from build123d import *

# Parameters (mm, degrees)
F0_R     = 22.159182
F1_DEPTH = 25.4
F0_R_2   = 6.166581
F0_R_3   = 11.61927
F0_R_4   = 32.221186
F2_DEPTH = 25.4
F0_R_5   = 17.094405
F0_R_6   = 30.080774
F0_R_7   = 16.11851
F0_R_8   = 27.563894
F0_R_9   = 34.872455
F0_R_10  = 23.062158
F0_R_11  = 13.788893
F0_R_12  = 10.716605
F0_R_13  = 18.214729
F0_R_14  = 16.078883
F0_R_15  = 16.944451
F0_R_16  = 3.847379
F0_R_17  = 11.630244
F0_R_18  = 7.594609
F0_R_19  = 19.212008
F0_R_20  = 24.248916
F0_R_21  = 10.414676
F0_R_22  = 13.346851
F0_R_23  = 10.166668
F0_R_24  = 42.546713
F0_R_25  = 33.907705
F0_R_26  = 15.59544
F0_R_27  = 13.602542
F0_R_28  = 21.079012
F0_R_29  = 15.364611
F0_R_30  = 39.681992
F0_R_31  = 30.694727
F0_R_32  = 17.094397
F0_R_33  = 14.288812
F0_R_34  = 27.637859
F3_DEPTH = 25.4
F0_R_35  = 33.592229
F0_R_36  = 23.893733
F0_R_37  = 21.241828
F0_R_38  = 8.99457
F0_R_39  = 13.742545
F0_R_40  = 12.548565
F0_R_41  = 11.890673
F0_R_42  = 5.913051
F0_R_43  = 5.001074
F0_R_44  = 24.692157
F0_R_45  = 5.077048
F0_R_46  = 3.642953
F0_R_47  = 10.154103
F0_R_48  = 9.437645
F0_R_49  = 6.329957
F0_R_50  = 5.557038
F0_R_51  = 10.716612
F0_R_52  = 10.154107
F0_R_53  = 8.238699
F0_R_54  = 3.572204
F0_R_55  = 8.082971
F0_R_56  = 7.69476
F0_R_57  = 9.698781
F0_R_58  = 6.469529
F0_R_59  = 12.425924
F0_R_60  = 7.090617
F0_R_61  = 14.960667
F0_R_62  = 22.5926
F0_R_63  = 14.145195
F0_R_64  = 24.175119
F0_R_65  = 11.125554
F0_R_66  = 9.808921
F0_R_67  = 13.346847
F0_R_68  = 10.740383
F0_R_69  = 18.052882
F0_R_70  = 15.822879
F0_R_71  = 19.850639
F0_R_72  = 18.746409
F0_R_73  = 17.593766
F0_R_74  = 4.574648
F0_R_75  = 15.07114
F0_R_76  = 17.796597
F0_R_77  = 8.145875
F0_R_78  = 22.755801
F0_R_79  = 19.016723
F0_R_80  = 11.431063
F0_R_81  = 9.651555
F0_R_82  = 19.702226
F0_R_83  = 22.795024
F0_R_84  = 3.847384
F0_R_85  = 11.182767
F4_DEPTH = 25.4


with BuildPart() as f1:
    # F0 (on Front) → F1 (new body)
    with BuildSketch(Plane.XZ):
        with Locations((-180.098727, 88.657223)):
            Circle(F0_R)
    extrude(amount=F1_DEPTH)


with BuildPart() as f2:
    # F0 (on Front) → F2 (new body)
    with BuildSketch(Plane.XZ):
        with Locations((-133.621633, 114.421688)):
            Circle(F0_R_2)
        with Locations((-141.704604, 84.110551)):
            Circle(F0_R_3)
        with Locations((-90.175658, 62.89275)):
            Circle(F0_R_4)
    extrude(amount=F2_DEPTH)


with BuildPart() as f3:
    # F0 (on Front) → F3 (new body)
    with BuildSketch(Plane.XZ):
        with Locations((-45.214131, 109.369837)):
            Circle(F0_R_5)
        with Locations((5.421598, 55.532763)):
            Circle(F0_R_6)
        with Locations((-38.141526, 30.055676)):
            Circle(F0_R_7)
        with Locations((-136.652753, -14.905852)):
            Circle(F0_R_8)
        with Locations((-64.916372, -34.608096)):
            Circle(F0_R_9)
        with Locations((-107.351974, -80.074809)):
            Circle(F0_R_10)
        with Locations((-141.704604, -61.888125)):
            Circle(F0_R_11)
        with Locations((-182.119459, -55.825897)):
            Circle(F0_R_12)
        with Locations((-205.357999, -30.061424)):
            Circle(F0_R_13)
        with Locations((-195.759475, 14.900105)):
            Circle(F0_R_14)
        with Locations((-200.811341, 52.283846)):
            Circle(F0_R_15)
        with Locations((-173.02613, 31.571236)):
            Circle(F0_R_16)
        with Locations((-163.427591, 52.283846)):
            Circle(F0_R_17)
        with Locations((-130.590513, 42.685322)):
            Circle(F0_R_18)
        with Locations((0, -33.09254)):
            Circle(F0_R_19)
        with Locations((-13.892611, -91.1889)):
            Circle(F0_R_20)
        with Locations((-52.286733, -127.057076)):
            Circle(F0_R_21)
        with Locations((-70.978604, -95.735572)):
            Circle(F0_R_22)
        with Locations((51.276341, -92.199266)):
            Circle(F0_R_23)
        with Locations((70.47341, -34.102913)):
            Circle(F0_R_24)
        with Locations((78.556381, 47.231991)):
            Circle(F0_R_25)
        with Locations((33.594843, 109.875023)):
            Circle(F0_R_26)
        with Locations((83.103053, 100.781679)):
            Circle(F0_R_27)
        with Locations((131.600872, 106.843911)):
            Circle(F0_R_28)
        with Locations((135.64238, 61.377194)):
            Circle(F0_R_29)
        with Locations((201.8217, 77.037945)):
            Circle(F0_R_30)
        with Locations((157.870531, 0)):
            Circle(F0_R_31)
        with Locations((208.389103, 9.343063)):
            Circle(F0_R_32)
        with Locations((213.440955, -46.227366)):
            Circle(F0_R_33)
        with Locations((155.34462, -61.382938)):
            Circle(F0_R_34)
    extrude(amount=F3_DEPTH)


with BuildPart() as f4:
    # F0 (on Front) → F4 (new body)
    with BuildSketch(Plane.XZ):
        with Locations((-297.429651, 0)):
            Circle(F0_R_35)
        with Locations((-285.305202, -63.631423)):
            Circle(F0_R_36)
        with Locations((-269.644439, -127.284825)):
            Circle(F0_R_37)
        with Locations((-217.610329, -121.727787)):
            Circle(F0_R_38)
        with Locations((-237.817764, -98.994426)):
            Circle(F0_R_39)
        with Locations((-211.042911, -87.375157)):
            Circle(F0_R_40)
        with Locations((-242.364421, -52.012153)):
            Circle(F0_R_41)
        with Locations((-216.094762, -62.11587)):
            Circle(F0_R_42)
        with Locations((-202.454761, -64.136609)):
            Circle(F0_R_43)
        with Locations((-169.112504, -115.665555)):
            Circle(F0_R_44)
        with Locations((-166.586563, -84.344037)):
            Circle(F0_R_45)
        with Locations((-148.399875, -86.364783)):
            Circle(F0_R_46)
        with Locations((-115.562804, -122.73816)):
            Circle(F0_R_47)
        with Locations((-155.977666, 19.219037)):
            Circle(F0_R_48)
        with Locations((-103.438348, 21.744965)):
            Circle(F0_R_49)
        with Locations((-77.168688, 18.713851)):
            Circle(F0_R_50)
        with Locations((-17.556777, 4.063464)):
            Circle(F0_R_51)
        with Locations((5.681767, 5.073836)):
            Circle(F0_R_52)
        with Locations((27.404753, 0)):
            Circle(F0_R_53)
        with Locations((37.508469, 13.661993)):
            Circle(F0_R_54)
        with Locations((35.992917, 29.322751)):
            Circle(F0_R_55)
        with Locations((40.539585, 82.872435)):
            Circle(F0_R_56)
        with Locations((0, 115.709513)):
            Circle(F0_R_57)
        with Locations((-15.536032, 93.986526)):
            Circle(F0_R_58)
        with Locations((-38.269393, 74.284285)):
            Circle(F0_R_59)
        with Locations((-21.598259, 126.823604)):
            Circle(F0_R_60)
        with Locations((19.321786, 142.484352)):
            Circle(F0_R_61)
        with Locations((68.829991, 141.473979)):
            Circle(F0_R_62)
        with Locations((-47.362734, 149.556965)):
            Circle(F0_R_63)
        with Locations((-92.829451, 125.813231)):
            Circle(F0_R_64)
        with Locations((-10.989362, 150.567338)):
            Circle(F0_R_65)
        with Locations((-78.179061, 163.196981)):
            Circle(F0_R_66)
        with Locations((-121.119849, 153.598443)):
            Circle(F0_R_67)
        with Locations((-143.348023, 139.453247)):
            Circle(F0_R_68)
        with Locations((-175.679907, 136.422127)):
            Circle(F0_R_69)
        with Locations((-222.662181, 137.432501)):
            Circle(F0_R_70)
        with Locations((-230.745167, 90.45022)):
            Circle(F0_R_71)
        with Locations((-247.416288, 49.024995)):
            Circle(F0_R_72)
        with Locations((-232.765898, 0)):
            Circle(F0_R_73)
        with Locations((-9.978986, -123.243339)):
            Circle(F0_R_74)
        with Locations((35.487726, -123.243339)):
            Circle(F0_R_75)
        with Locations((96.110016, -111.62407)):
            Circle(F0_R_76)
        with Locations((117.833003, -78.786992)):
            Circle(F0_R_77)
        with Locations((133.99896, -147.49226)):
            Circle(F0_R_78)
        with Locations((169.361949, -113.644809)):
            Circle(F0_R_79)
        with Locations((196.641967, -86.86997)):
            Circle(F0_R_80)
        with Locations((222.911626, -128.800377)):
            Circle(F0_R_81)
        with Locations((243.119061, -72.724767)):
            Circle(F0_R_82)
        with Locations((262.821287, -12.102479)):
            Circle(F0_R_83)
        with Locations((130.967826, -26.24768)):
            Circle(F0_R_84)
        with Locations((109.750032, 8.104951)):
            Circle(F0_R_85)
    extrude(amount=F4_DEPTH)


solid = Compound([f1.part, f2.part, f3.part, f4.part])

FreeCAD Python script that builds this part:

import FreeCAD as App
import Part
import Sketcher

V = App.Vector
Q = App.Units.Quantity

doc = App.newDocument("Part")
body = doc.addObject("PartDesign::Body", "Body")

sketch1 = doc.addObject("Sketcher::SketchObject", "Sketch")
body.addObject(sketch1)
sketch1.AttachmentSupport = (doc.XZ_Plane, [""])
sketch1.MapMode = "FlatFace"
sketch1.addGeometry(Part.Circle(V(-180, 89, 0), V(0, 0, 1), 22), False)
sketch1.addConstraint([
    Sketcher.Constraint("Diameter", 0, 44.318364),
    Sketcher.Constraint("DistanceX", 0, 3, -1, 1, 180.098727),
    Sketcher.Constraint("DistanceY", -1, 1, 0, 3, 88.657223),
])
pad1 = doc.addObject("PartDesign::Pad", "Pad")
body.addObject(pad1)
pad1.Profile = sketch1
pad1.Length = Q("1 in")
body2 = doc.addObject("PartDesign::Body", "Body001")
body2.AllowCompound = True

sketch2 = doc.addObject("Sketcher::SketchObject", "Sketch001")
body2.addObject(sketch2)
sketch2.AttachmentSupport = (doc.getObject("XZ_Plane001"), [""])
sketch2.MapMode = "FlatFace"
sketch2.addGeometry([
    Part.Circle(V(-134, 114, 0), V(0, 0, 1), 6),
    Part.Circle(V(-142, 84, 0), V(0, 0, 1), 12),
    Part.Circle(V(-90, 63, 0), V(0, 0, 1), 32),
], False)
sketch2.addConstraint([
    Sketcher.Constraint("Diameter", 1, 23.23854),
    Sketcher.Constraint("Diameter", 0, 12.333162),
    Sketcher.Constraint("Diameter", 2, 64.442372),
    Sketcher.Constraint("DistanceY", 2, 3, 1, 3, 21.217801),
    Sketcher.Constraint("DistanceY", -1, 1, 0, 3, 114.421688),
    Sketcher.Constraint("DistanceY", -1, 1, 1, 3, 84.110551),
    Sketcher.Constraint("DistanceX", 2, 3, -1, 1, 90.175658),
    Sketcher.Constraint("DistanceX", 1, 3, 0, 3, 8.082971),
    Sketcher.Constraint("DistanceX", 0, 3, -1, 1, 133.621633),
])
pad2 = doc.addObject("PartDesign::Pad", "Pad001")
body2.addObject(pad2)
pad2.Profile = sketch2
pad2.Length = Q("1 in")
body3 = doc.addObject("PartDesign::Body", "Body002")
body3.AllowCompound = True

sketch3 = doc.addObject("Sketcher::SketchObject", "Sketch002")
body3.addObject(sketch3)
sketch3.AttachmentSupport = (doc.getObject("XZ_Plane002"), [""])
sketch3.MapMode = "FlatFace"
sketch3.addGeometry([
    Part.Circle(V(-45.2, 109.4, 0), V(0, 0, 1), 17.1),
    Part.Circle(V(5.4, 55.5, 0), V(0, 0, 1), 30.1),
    Part.Circle(V(-38.1, 30.1, 0), V(0, 0, 1), 16.1),
    Part.Circle(V(-136.7, -14.9, 0), V(0, 0, 1), 27.6),
    Part.Circle(V(-64.9, -34.6, 0), V(0, 0, 1), 34.9),
    Part.Circle(V(-107.4, -80.1, 0), V(0, 0, 1), 23.1),
    Part.Circle(V(-141.7, -61.9, 0), V(0, 0, 1), 13.8),
    Part.Circle(V(-182.1, -55.8, 0), V(0, 0, 1), 10.7),
    Part.Circle(V(-205.4, -30.1, 0), V(0, 0, 1), 18.2),
    Part.Circle(V(-195.8, 14.9, 0), V(0, 0, 1), 16.1),
    Part.Circle(V(-200.8, 52.3, 0), V(0, 0, 1), 16.9),
    Part.Circle(V(-173, 31.6, 0), V(0, 0, 1), 3.8),
    Part.Circle(V(-163.4, 52.3, 0), V(0, 0, 1), 11.6),
    Part.Circle(V(-130.6, 42.7, 0), V(0, 0, 1), 7.6),
    Part.Circle(V(0, -33.1, 0), V(0, 0, 1), 19.2),
    Part.Circle(V(-13.9, -91.2, 0), V(0, 0, 1), 24.2),
    Part.Circle(V(-52.3, -127.1, 0), V(0, 0, 1), 10.4),
    Part.Circle(V(-71, -95.7, 0), V(0, 0, 1), 13.3),
    Part.Circle(V(51.3, -92.2, 0), V(0, 0, 1), 10.2),
    Part.Circle(V(70.5, -34.1, 0), V(0, 0, 1), 42.5),
    Part.Circle(V(78.6, 47.2, 0), V(0, 0, 1), 33.9),
    Part.Circle(V(33.6, 109.9, 0), V(0, 0, 1), 15.6),
    Part.Circle(V(83.1, 100.8, 0), V(0, 0, 1), 13.6),
    Part.Circle(V(131.6, 106.8, 0), V(0, 0, 1), 21.1),
    Part.Circle(V(135.6, 61.4, 0), V(0, 0, 1), 15.4),
    Part.Circle(V(201.8, 77, 0), V(0, 0, 1), 39.7),
    Part.Circle(V(157.9, 0, 0), V(0, 0, 1), 30.7),
    Part.Circle(V(208.4, 9.3, 0), V(0, 0, 1), 17.1),
    Part.Circle(V(213.4, -46.2, 0), V(0, 0, 1), 14.3),
    Part.Circle(V(155.3, -61.4, 0), V(0, 0, 1), 27.6),
], False)
sketch3.addConstraint([
    Sketcher.Constraint("PointOnObject", 14, 3, -2),
    Sketcher.Constraint("PointOnObject", 26, 3, -1),
    Sketcher.Constraint("Horizontal", 10, 3, 12, 3),
    Sketcher.Constraint("Diameter", 17, 26.693702),
    Sketcher.Constraint("Diameter", 0, 34.18881),
    Sketcher.Constraint("Diameter", 1, 60.161548),
    Sketcher.Constraint("Diameter", 2, 32.23702),
    Sketcher.Constraint("Diameter", 3, 55.127788),
    Sketcher.Constraint("Diameter", 4, 69.74491),
    Sketcher.Constraint("Diameter", 7, 21.43321),
    Sketcher.Constraint("Diameter", 11, 7.694758),
    Sketcher.Constraint("Diameter", 16, 20.829352),
    Sketcher.Constraint("Diameter", 20, 67.81541),
    Sketcher.Constraint("Diameter", 21, 31.19088),
    Sketcher.Constraint("Diameter", 24, 30.729222),
    Sketcher.Constraint("Diameter", 5, 46.124316),
    Sketcher.Constraint("Diameter", 6, 27.577786),
    Sketcher.Constraint("Diameter", 8, 36.429458),
    Sketcher.Constraint("Diameter", 9, 32.157766),
    Sketcher.Constraint("Diameter", 10, 33.888902),
    Sketcher.Constraint("Diameter", 12, 23.260488),
    Sketcher.Constraint("Diameter", 13, 15.189218),
    Sketcher.Constraint("Diameter", 14, 38.424016),
    Sketcher.Constraint("Diameter", 15, 48.497832),
    Sketcher.Constraint("Diameter", 18, 20.333336),
    Sketcher.Constraint("Diameter", 19, 85.093426),
    Sketcher.Constraint("Diameter", 22, 27.205084),
    Sketcher.Constraint("Diameter", 23, 42.158024),
    Sketcher.Constraint("Diameter", 25, 79.363984),
    Sketcher.Constraint("Diameter", 26, 61.389454),
    Sketcher.Constraint("Diameter", 27, 34.188794),
    Sketcher.Constraint("Diameter", 28, 28.577624),
    Sketcher.Constraint("Diameter", 29, 55.275718),
    Sketcher.Constraint("DistanceY", 28, 3, 24, 3, Q("4.2364 in")),
    Sketcher.Constraint("DistanceX", -1, 1, 1, 3, 5.421598),
    Sketcher.Constraint("DistanceX", 8, 3, -1, 1, 205.357999),
    Sketcher.Constraint("DistanceY", 15, 3, -1, 1, 91.1889),
    Sketcher.Constraint("DistanceX", -1, 1, 25, 3, 201.8217),
    Sketcher.Constraint("DistanceY", 6, 3, 2, 3, 91.943801),
    Sketcher.Constraint("DistanceX", 6, 3, 1, 3, 147.126202),
    Sketcher.Constraint("DistanceY", 7, 3, 4, 3, 21.217801),
    Sketcher.Constraint("DistanceY", 6, 3, 8, 3, 31.826701),
    Sketcher.Constraint("DistanceY", 7, 3, 9, 3, 70.726002),
    Sketcher.Constraint("DistanceX", 9, 3, 5, 3, 88.407501),
    Sketcher.Constraint("DistanceX", 6, 3, 17, 3, 70.726),
    Sketcher.Constraint("DistanceX", 20, 3, 24, 3, 57.085999),
    Sketcher.Constraint("DistanceY", 29, 3, 27, 3, 70.726001),
    Sketcher.Constraint("DistanceX", 0, 3, -1, 1, 45.214131),
    Sketcher.Constraint("DistanceX", 4, 3, -1, 1, 64.916372),
    Sketcher.Constraint("DistanceY", 5, 3, -1, 1, 80.074809),
    Sketcher.Constraint("DistanceX", 7, 3, -1, 1, 182.119459),
    Sketcher.Constraint("DistanceX", 10, 3, -1, 1, 200.811341),
    Sketcher.Constraint("DistanceX", 11, 3, -1, 1, 173.02613),
    Sketcher.Constraint("DistanceX", 12, 3, -1, 1, 163.427591),
    Sketcher.Constraint("DistanceY", 14, 3, -1, 1, 33.09254),
    Sketcher.Constraint("DistanceX", 15, 3, -1, 1, 13.892611),
    Sketcher.Constraint("DistanceX", -1, 1, 18, 3, 51.276341),
    Sketcher.Constraint("DistanceX", -1, 1, 19, 3, 70.47341),
    Sketcher.Constraint("DistanceX", -1, 1, 20, 3, 78.556381),
    Sketcher.Constraint("DistanceY", -1, 1, 20, 3, 47.231991),
    Sketcher.Constraint("DistanceY", -1, 1, 22, 3, 100.781679),
    Sketcher.Constraint("DistanceY", -1, 1, 23, 3, 106.843911),
    Sketcher.Constraint("DistanceX", -1, 1, 26, 3, 157.870531),
    Sketcher.Constraint("DistanceX", -1, 1, 29, 3, 155.34462),
    Sketcher.Constraint("DistanceY", 29, 3, -1, 1, 61.382938),
    Sketcher.Constraint("DistanceY", 2, 3, 0, 3, 79.314161),
    Sketcher.Constraint("DistanceX", 3, 3, 0, 3, 91.438622),
    Sketcher.Constraint("DistanceY", 3, 3, 0, 3, 124.275689),
    Sketcher.Constraint("DistanceY", 4, 3, 2, 3, 64.663772),
    Sketcher.Constraint("DistanceY", 4, 3, 1, 3, 90.140859),
    Sketcher.Constraint("DistanceX", 3, 3, 5, 3, 29.300779),
    Sketcher.Constraint("DistanceX", 5, 3, 2, 3, 69.210448),
    Sketcher.Constraint("DistanceY", 5, 3, 1, 3, 135.607572),
    Sketcher.Constraint("DistanceY", 9, 3, 10, 3, 37.383741),
    Sketcher.Constraint("DistanceY", 9, 3, 11, 3, 16.671131),
    Sketcher.Constraint("DistanceX", 12, 3, 13, 3, 32.837078),
    Sketcher.Constraint("DistanceX", 16, 3, 15, 3, 38.394122),
    Sketcher.Constraint("DistanceY", 16, 3, 4, 3, 92.44898),
    Sketcher.Constraint("DistanceY", 16, 3, 18, 3, 34.85781),
    Sketcher.Constraint("DistanceY", 19, 3, 2, 3, 64.158589),
    Sketcher.Constraint("DistanceY", 1, 3, 21, 3, 54.34226),
    Sketcher.Constraint("DistanceX", 21, 3, 20, 3, 44.961538),
    Sketcher.Constraint("DistanceX", 21, 3, 22, 3, 49.50821),
    Sketcher.Constraint("DistanceX", 22, 3, 23, 3, 48.497819),
    Sketcher.Constraint("DistanceY", 24, 3, 21, 3, 48.497829),
    Sketcher.Constraint("DistanceY", 24, 3, 25, 3, 15.660751),
    Sketcher.Constraint("DistanceX", 23, 3, 27, 3, 76.788231),
    Sketcher.Constraint("DistanceX", 27, 3, 28, 3, 5.051852),
    Sketcher.Constraint("DistanceY", -1, 1, 13, 3, 42.685322),
    Sketcher.Constraint("DistanceY", 17, 3, -1, 1, 95.735572),
])
pad3 = doc.addObject("PartDesign::Pad", "Pad002")
body3.addObject(pad3)
pad3.Profile = sketch3
pad3.Length = Q("1 in")
body4 = doc.addObject("PartDesign::Body", "Body003")
body4.AllowCompound = True

sketch4 = doc.addObject("Sketcher::SketchObject", "Sketch003")
body4.addObject(sketch4)
sketch4.AttachmentSupport = (doc.getObject("XZ_Plane003"), [""])
sketch4.MapMode = "FlatFace"
sketch4.addGeometry([
    Part.Circle(V(-297.4, 0, 0), V(0, 0, 1), 33.6),
    Part.Circle(V(-285.3, -63.6, 0), V(0, 0, 1), 23.9),
    Part.Circle(V(-269.6, -127.3, 0), V(0, 0, 1), 21.2),
    Part.Circle(V(-217.6, -121.7, 0), V(0, 0, 1), 9),
    Part.Circle(V(-237.8, -99, 0), V(0, 0, 1), 13.7),
    Part.Circle(V(-211, -87.4, 0), V(0, 0, 1), 12.5),
    Part.Circle(V(-242.4, -52, 0), V(0, 0, 1), 11.9),
    Part.Circle(V(-216.1, -62.1, 0), V(0, 0, 1), 5.9),
    Part.Circle(V(-202.5, -64.1, 0), V(0, 0, 1), 5),
    Part.Circle(V(-169.1, -115.7, 0), V(0, 0, 1), 24.7),
    Part.Circle(V(-166.6, -84.3, 0), V(0, 0, 1), 5.1),
    Part.Circle(V(-148.4, -86.4, 0), V(0, 0, 1), 3.6),
    Part.Circle(V(-115.6, -122.7, 0), V(0, 0, 1), 10.2),
    Part.Circle(V(-156, 19.2, 0), V(0, 0, 1), 9.4),
    Part.Circle(V(-103.4, 21.7, 0), V(0, 0, 1), 6.3),
    Part.Circle(V(-77.2, 18.7, 0), V(0, 0, 1), 5.6),
    Part.Circle(V(-17.6, 4.1, 0), V(0, 0, 1), 10.7),
    Part.Circle(V(5.7, 5.1, 0), V(0, 0, 1), 10.2),
    Part.Circle(V(27.4, 0, 0), V(0, 0, 1), 8.2),
    Part.Circle(V(37.5, 13.7, 0), V(0, 0, 1), 3.6),
    Part.Circle(V(36, 29.3, 0), V(0, 0, 1), 8.1),
    Part.Circle(V(40.5, 82.9, 0), V(0, 0, 1), 7.7),
    Part.Circle(V(0, 115.7, 0), V(0, 0, 1), 9.7),
    Part.Circle(V(-15.5, 94, 0), V(0, 0, 1), 6.5),
    Part.Circle(V(-38.3, 74.3, 0), V(0, 0, 1), 12.4),
    Part.Circle(V(-21.6, 126.8, 0), V(0, 0, 1), 7.1),
    Part.Circle(V(19.3, 142.5, 0), V(0, 0, 1), 15),
    Part.Circle(V(68.8, 141.5, 0), V(0, 0, 1), 22.6),
    Part.Circle(V(-47.4, 149.6, 0), V(0, 0, 1), 14.1),
    Part.Circle(V(-92.8, 125.8, 0), V(0, 0, 1), 24.2),
    Part.Circle(V(-11, 150.6, 0), V(0, 0, 1), 11.1),
    Part.Circle(V(-78.2, 163.2, 0), V(0, 0, 1), 9.8),
    Part.Circle(V(-121.1, 153.6, 0), V(0, 0, 1), 13.3),
    Part.Circle(V(-143.3, 139.5, 0), V(0, 0, 1), 10.7),
    Part.Circle(V(-175.7, 136.4, 0), V(0, 0, 1), 18.1),
    Part.Circle(V(-222.7, 137.4, 0), V(0, 0, 1), 15.8),
    Part.Circle(V(-230.7, 90.5, 0), V(0, 0, 1), 19.9),
    Part.Circle(V(-247.4, 49, 0), V(0, 0, 1), 18.7),
    Part.Circle(V(-232.8, 0, 0), V(0, 0, 1), 17.6),
    Part.Circle(V(-10, -123.2, 0), V(0, 0, 1), 4.6),
    Part.Circle(V(35.5, -123.2, 0), V(0, 0, 1), 15.1),
    Part.Circle(V(96.1, -111.6, 0), V(0, 0, 1), 17.8),
    Part.Circle(V(117.8, -78.8, 0), V(0, 0, 1), 8.1),
    Part.Circle(V(134, -147.5, 0), V(0, 0, 1), 22.8),
    Part.Circle(V(169.4, -113.6, 0), V(0, 0, 1), 19),
    Part.Circle(V(196.6, -86.9, 0), V(0, 0, 1), 11.4),
    Part.Circle(V(222.9, -128.8, 0), V(0, 0, 1), 9.7),
    Part.Circle(V(243.1, -72.7, 0), V(0, 0, 1), 19.7),
    Part.Circle(V(262.8, -12.1, 0), V(0, 0, 1), 22.8),
    Part.Circle(V(131, -26.2, 0), V(0, 0, 1), 3.8),
    Part.Circle(V(109.8, 8.1, 0), V(0, 0, 1), 11.2),
], False)
sketch4.addConstraint([
    Sketcher.Constraint("PointOnObject", 0, 3, -1),
    Sketcher.Constraint("PointOnObject", 18, 3, -1),
    Sketcher.Constraint("PointOnObject", 22, 3, -2),
    Sketcher.Constraint("PointOnObject", 38, 3, -1),
    Sketcher.Constraint("Horizontal", 39, 3, 40, 3),
    Sketcher.Constraint("Diameter", 18, 16.477398),
    Sketcher.Constraint("Diameter", 27, 45.1852),
    Sketcher.Constraint("Diameter", 0, 67.184458),
    Sketcher.Constraint("Diameter", 3, 17.98914),
    Sketcher.Constraint("Diameter", 4, 27.48509),
    Sketcher.Constraint("Diameter", 5, 25.09713),
    Sketcher.Constraint("Diameter", 13, 18.87529),
    Sketcher.Constraint("Diameter", 19, 7.144408),
    Sketcher.Constraint("Diameter", 21, 15.38952),
    Sketcher.Constraint("Diameter", 24, 24.851848),
    Sketcher.Constraint("Diameter", 28, 28.29039),
    Sketcher.Constraint("Diameter", 31, 19.617842),
    Sketcher.Constraint("Diameter", 35, 31.645758),
    Sketcher.Constraint("Diameter", 36, 39.701278),
    Sketcher.Constraint("Diameter", 38, 35.187532),
    Sketcher.Constraint("Diameter", 40, 30.14228),
    Sketcher.Constraint("Diameter", 42, 16.29175),
    Sketcher.Constraint("Diameter", 46, 19.30311),
    Sketcher.Constraint("Diameter", 48, 45.590048),
    Sketcher.Constraint("Diameter", 1, 47.787466),
    Sketcher.Constraint("Diameter", 2, 42.483656),
    Sketcher.Constraint("Diameter", 6, 23.781346),
    Sketcher.Constraint("Diameter", 7, 11.826102),
    Sketcher.Constraint("Diameter", 8, 10.002148),
    Sketcher.Constraint("Diameter", 9, 49.384314),
    Sketcher.Constraint("Diameter", 10, 10.154096),
    Sketcher.Constraint("Diameter", 11, 7.285906),
    Sketcher.Constraint("Diameter", 12, 20.308206),
    Sketcher.Constraint("Diameter", 14, 12.659914),
    Sketcher.Constraint("Diameter", 15, 11.114076),
    Sketcher.Constraint("Diameter", 16, 21.433224),
    Sketcher.Constraint("Diameter", 17, 20.308214),
    Sketcher.Constraint("Diameter", 20, 16.165942),
    Sketcher.Constraint("Diameter", 22, 19.397562),
    Sketcher.Constraint("Diameter", 23, 12.939058),
    Sketcher.Constraint("Diameter", 25, 14.181234),
    Sketcher.Constraint("Diameter", 26, 29.921334),
    Sketcher.Constraint("Diameter", 29, 48.350238),
    Sketcher.Constraint("Diameter", 30, 22.251108),
    Sketcher.Constraint("Diameter", 32, 26.693694),
    Sketcher.Constraint("Diameter", 33, 21.480766),
    Sketcher.Constraint("Diameter", 34, 36.105764),
    Sketcher.Constraint("Diameter", 37, 37.492818),
    Sketcher.Constraint("Diameter", 39, 9.149296),
    Sketcher.Constraint("Diameter", 41, 35.593194),
    Sketcher.Constraint("Diameter", 43, 45.511602),
    Sketcher.Constraint("Diameter", 44, 38.033446),
    Sketcher.Constraint("Diameter", 45, 22.862126),
    Sketcher.Constraint("Diameter", 47, 39.404452),
    Sketcher.Constraint("Diameter", 49, 7.694768),
    Sketcher.Constraint("Diameter", 50, 22.365534),
    Sketcher.Constraint("DistanceY", 39, 3, -1, 1, Q("4.8521 in")),
    Sketcher.Constraint("DistanceX", 42, 3, 48, 3, Q("5.7082002 in")),
    Sketcher.Constraint("DistanceX", 1, 3, -1, 1, 285.305202),
    Sketcher.Constraint("DistanceY", -1, 1, 35, 3, 137.432501),
    Sketcher.Constraint("DistanceX", 38, 3, -1, 1, 232.765898),
    Sketcher.Constraint("DistanceY", 2, 3, 4, 3, 28.290399),
    Sketcher.Constraint("DistanceX", 7, 3, 8, 3, 13.640001),
    Sketcher.Constraint("DistanceX", 7, 3, 10, 3, 49.508199),
    Sketcher.Constraint("DistanceX", 9, 3, 12, 3, 53.5497),
    Sketcher.Constraint("DistanceY", 10, 3, 14, 3, 106.089002),
    Sketcher.Constraint("DistanceY", 16, 3, 14, 3, 17.681501),
    Sketcher.Constraint("DistanceX", 11, 3, 16, 3, 130.843098),
    Sketcher.Constraint("DistanceY", 17, 3, 13, 3, 14.145201),
    Sketcher.Constraint("DistanceX", 14, 3, 18, 3, 130.843101),
    Sketcher.Constraint("DistanceX", 17, 3, 19, 3, 31.826702),
    Sketcher.Constraint("DistanceY", 15, 3, 20, 3, 10.6089),
    Sketcher.Constraint("DistanceY", 17, 3, 21, 3, 77.798599),
    Sketcher.Constraint("DistanceX", 23, 3, 17, 3, 21.217799),
    Sketcher.Constraint("DistanceX", 26, 3, 21, 3, 21.217799),
    Sketcher.Constraint("DistanceX", 31, 3, 30, 3, 67.189699),
    Sketcher.Constraint("DistanceX", 36, 3, 13, 3, 74.767501),
    Sketcher.Constraint("DistanceY", 41, 3, 45, 3, 24.7541),
    Sketcher.Constraint("DistanceX", 43, 3, 47, 3, 109.120101),
    Sketcher.Constraint("DistanceY", 50, 3, 20, 3, 21.2178),
    Sketcher.Constraint("DistanceX", 0, 3, -1, 1, 297.429651),
    Sketcher.Constraint("DistanceX", 2, 3, -1, 1, 269.644439),
    Sketcher.Constraint("DistanceX", 3, 3, -1, 1, 217.610329),
    Sketcher.Constraint("DistanceX", 5, 3, -1, 1, 211.042911),
    Sketcher.Constraint("DistanceX", 6, 3, -1, 1, 242.364421),
    Sketcher.Constraint("DistanceX", 7, 3, -1, 1, 216.094762),
    Sketcher.Constraint("DistanceY", 7, 3, -1, 1, 62.11587),
    Sketcher.Constraint("DistanceY", 8, 3, -1, 1, 64.136609),
    Sketcher.Constraint("DistanceY", 12, 3, -1, 1, 122.73816),
    Sketcher.Constraint("DistanceX", 14, 3, -1, 1, 103.438348),
    Sketcher.Constraint("DistanceX", 15, 3, -1, 1, 77.168688),
    Sketcher.Constraint("DistanceY", -1, 1, 15, 3, 18.713851),
    Sketcher.Constraint("DistanceX", -1, 1, 19, 3, 37.508469),
    Sketcher.Constraint("DistanceX", 25, 3, -1, 1, 21.598259),
    Sketcher.Constraint("DistanceY", -1, 1, 26, 3, 142.484352),
    Sketcher.Constraint("DistanceX", -1, 1, 27, 3, 68.829991),
    Sketcher.Constraint("DistanceY", -1, 1, 27, 3, 141.473979),
    Sketcher.Constraint("DistanceX", 29, 3, -1, 1, 92.829451),
    Sketcher.Constraint("DistanceY", -1, 1, 29, 3, 125.813231),
    Sketcher.Constraint("DistanceY", -1, 1, 30, 3, 150.567338),
    Sketcher.Constraint("DistanceX", 31, 3, -1, 1, 78.179061),
    Sketcher.Constraint("DistanceY", -1, 1, 31, 3, 163.196981),
    Sketcher.Constraint("DistanceX", 32, 3, -1, 1, 121.119849),
    Sketcher.Constraint("DistanceX", 35, 3, -1, 1, 222.662181),
    Sketcher.Constraint("DistanceY", -1, 1, 36, 3, 90.45022),
    Sketcher.Constraint("DistanceX", 37, 3, -1, 1, 247.416288),
    Sketcher.Constraint("DistanceY", 41, 3, -1, 1, 111.62407),
    Sketcher.Constraint("DistanceY", 42, 3, -1, 1, 78.786992),
    Sketcher.Constraint("DistanceX", -1, 1, 43, 3, 133.99896),
    Sketcher.Constraint("DistanceY", 43, 3, -1, 1, 147.49226),
    Sketcher.Constraint("DistanceX", -1, 1, 44, 3, 169.361949),
    Sketcher.Constraint("DistanceY", 44, 3, -1, 1, 113.644809),
    Sketcher.Constraint("DistanceY", 48, 3, -1, 1, 12.102479),
    Sketcher.Constraint("DistanceY", 49, 3, -1, 1, 26.24768),
    Sketcher.Constraint("DistanceY", 3, 3, 4, 3, 22.733361),
    Sketcher.Constraint("DistanceY", 4, 3, 5, 3, 11.619269),
    Sketcher.Constraint("DistanceY", 1, 3, 6, 3, 11.61927),
    Sketcher.Constraint("DistanceX", 4, 3, 9, 3, 68.70526),
    Sketcher.Constraint("DistanceY", 9, 3, 4, 3, 16.671129),
    Sketcher.Constraint("DistanceX", 7, 3, 9, 3, 46.982258),
    Sketcher.Constraint("DistanceY", 5, 3, 10, 3, 3.03112),
    Sketcher.Constraint("DistanceX", 10, 3, 11, 3, 18.186688),
    Sketcher.Constraint("DistanceY", 9, 3, 11, 3, 29.300772),
    Sketcher.Constraint("DistanceX", 13, 3, 11, 3, 7.577791),
    Sketcher.Constraint("DistanceY", 11, 3, 13, 3, 105.58382),
    Sketcher.Constraint("DistanceY", 6, 3, 13, 3, 71.23119),
    Sketcher.Constraint("DistanceY", 16, 3, 19, 3, 9.598529),
    Sketcher.Constraint("DistanceX", 20, 3, 19, 3, 1.515552),
    Sketcher.Constraint("DistanceX", 20, 3, 21, 3, 4.546668),
    Sketcher.Constraint("DistanceY", 21, 3, 22, 3, 32.837078),
    Sketcher.Constraint("DistanceY", 21, 3, 23, 3, 11.114091),
    Sketcher.Constraint("DistanceX", 24, 3, 23, 3, 22.733361),
    Sketcher.Constraint("DistanceY", 24, 3, 23, 3, 19.702241),
    Sketcher.Constraint("DistanceY", 22, 3, 25, 3, 11.114091),
    Sketcher.Constraint("DistanceY", 22, 3, 26, 3, 26.774839),
    Sketcher.Constraint("DistanceY", 25, 3, 28, 3, 22.733361),
    Sketcher.Constraint("DistanceX", 28, 3, 26, 3, 66.68452),
    Sketcher.Constraint("DistanceY", 28, 3, 32, 3, 4.041478),
    Sketcher.Constraint("DistanceX", 33, 3, 28, 3, 95.985289),
    Sketcher.Constraint("DistanceY", 13, 3, 33, 3, 120.23421),
    Sketcher.Constraint("DistanceY", 34, 3, 33, 3, 3.03112),
    Sketcher.Constraint("DistanceX", 34, 3, 13, 3, 19.702241),
    Sketcher.Constraint("DistanceY", 6, 3, 37, 3, 101.037148),
    Sketcher.Constraint("DistanceX", 16, 3, 39, 3, 7.577791),
    Sketcher.Constraint("DistanceX", 17, 3, 40, 3, 29.805959),
    Sketcher.Constraint("DistanceX", 40, 3, 41, 3, 60.62229),
    Sketcher.Constraint("DistanceX", 18, 3, 42, 3, 90.42825),
    Sketcher.Constraint("DistanceX", 41, 3, 45, 3, 100.531951),
    Sketcher.Constraint("DistanceX", 45, 3, 46, 3, 26.269659),
    Sketcher.Constraint("DistanceY", 46, 3, 44, 3, 15.155568),
    Sketcher.Constraint("DistanceY", 46, 3, 47, 3, 56.07561),
    Sketcher.Constraint("DistanceX", 49, 3, 45, 3, 65.674141),
    Sketcher.Constraint("DistanceX", 18, 3, 50, 3, 82.345279),
])
pad4 = doc.addObject("PartDesign::Pad", "Pad003")
body4.addObject(pad4)
pad4.Profile = sketch4
pad4.Length = Q("1 in")

doc.recompute()
